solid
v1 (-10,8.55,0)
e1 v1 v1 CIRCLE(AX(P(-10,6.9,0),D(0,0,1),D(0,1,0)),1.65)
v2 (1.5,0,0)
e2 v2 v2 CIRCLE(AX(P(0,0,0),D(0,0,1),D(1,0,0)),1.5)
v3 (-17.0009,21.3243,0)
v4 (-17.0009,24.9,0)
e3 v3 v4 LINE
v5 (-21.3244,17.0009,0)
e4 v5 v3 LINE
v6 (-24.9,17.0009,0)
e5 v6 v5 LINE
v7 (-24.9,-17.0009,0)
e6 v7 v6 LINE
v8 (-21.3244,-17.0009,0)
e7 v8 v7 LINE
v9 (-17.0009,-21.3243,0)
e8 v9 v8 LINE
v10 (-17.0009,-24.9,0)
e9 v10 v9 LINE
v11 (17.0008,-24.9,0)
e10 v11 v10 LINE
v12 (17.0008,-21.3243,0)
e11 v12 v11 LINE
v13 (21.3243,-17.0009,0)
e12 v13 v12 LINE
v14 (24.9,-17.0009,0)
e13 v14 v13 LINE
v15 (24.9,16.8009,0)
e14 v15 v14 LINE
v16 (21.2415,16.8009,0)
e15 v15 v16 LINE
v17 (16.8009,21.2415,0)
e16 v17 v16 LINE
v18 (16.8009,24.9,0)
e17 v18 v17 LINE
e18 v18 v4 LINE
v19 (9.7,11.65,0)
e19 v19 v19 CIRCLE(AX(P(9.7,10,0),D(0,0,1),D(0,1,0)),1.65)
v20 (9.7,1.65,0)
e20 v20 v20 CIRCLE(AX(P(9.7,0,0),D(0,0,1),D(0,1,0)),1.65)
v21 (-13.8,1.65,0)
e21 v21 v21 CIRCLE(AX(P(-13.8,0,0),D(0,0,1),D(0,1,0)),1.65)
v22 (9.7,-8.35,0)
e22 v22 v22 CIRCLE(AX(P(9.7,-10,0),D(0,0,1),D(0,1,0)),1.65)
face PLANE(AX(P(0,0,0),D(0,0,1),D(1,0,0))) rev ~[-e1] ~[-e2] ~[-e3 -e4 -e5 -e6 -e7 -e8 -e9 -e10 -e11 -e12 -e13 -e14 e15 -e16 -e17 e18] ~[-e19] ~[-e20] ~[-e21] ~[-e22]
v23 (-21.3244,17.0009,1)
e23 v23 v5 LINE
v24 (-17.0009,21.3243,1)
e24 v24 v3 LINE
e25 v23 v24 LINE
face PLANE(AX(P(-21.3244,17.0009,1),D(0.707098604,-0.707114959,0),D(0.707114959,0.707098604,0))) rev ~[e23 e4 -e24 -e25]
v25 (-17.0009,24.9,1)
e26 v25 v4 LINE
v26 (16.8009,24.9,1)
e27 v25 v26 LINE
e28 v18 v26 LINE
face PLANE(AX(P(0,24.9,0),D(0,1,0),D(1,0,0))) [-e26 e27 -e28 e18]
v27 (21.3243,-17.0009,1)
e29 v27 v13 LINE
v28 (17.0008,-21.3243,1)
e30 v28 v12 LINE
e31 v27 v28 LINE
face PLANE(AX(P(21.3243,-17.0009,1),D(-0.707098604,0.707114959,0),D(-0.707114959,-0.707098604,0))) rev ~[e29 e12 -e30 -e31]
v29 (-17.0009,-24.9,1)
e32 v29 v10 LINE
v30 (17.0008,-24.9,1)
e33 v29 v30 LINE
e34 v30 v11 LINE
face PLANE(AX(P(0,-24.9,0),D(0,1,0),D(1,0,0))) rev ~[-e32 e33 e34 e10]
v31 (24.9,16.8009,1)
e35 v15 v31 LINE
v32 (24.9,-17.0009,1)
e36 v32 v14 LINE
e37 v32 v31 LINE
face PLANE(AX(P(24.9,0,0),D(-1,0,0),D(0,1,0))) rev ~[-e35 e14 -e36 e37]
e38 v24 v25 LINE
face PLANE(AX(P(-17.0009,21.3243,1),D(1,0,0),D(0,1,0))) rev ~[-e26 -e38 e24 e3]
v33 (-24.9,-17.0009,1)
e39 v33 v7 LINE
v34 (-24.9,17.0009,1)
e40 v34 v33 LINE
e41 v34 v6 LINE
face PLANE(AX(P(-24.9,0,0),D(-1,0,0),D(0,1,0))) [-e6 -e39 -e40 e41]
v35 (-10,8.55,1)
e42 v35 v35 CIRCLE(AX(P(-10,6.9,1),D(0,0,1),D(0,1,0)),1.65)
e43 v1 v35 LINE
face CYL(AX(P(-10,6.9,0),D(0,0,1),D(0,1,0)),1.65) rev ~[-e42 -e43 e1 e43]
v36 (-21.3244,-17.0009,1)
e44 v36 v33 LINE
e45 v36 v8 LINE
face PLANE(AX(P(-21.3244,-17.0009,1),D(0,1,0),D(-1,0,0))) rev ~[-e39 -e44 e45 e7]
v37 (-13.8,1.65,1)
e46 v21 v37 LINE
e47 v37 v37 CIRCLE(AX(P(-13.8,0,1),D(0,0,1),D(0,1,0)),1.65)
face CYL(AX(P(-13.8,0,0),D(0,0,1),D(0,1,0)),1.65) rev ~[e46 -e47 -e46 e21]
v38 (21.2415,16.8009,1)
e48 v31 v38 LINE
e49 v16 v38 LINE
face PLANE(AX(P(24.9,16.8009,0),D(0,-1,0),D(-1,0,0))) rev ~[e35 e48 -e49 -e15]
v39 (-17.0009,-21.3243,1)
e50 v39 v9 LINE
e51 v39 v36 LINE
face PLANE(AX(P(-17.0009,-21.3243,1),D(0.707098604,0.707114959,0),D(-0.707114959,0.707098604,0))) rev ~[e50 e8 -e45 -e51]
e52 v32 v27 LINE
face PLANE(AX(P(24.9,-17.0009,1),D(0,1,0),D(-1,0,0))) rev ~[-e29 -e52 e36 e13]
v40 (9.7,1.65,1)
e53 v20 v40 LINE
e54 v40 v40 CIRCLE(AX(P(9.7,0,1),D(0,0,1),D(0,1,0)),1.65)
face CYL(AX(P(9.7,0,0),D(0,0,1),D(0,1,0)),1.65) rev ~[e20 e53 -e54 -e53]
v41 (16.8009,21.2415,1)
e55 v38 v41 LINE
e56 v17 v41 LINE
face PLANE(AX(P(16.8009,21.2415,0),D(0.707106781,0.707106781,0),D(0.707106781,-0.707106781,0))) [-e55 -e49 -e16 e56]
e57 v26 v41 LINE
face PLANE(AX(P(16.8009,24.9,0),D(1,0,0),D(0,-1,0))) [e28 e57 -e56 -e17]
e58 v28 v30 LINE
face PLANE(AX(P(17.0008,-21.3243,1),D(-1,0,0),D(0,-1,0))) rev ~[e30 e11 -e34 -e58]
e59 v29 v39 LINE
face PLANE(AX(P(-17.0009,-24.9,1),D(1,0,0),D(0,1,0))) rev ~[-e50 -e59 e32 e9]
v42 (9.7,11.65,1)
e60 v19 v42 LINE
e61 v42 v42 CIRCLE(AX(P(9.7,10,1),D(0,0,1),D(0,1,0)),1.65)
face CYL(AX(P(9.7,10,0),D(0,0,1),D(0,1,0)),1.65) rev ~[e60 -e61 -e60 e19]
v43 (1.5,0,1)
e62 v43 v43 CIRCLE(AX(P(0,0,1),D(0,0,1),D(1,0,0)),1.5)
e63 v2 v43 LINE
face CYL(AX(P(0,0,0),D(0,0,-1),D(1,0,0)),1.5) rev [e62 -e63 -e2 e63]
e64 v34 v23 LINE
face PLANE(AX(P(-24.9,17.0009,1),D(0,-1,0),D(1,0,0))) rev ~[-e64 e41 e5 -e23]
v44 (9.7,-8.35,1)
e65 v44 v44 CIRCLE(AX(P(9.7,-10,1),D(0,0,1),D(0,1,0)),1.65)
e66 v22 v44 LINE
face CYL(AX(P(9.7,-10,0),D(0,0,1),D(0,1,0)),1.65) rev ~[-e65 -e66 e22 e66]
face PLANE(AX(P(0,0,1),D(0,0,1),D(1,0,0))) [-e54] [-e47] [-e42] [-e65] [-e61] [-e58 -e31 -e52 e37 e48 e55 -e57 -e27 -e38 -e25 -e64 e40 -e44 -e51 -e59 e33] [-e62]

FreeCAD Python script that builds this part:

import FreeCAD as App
import Part
import Sketcher
from FreeCAD import Vector
Q = App.Units.Quantity


def add_polygon(sketch, points):
    """Adds a closed chain of lines whose ends are joined by coincident constraints."""
    first, n = sketch.GeometryCount, len(points)
    for a, b in zip(points, points[1:] + points[:1]):
        sketch.addGeometry(Part.LineSegment(App.Vector(*a, 0), App.Vector(*b, 0)), False)
    for i in range(n):
        sketch.addConstraint(Sketcher.Constraint("Coincident", first + i, 2, first + (i + 1) % n, 1))

doc = App.newDocument("Part")
body = doc.addObject("PartDesign::Body", "Body")

sketch1 = body.newObject("Sketcher::SketchObject", "Sketch")
sketch1.AttachmentSupport = (doc.getObject("XY_Plane"), [""])
sketch1.MapMode = "FlatFace"
add_polygon(sketch1, [(16.8, 24.9), (-16.8, 24.9), (-16.8, 21.2), (-21.2, 16.8), (-24.9, 16.8), (-24.9, -16.8), (-21.2, -16.8), (-16.8, -21.2), (-16.8, -24.9), (16.8, -24.9), (16.8, -21.2), (21.2, -16.8), (24.9, -16.8), (24.9, 16.8), (21.2, 16.8), (16.8, 21.2)])
sketch1.addGeometry(Part.Circle(Vector(0, 0, 0), Vector(0, 0, 1), 1.5), False)
sketch1.addConstraint(Sketcher.Constraint("Horizontal", 0))
sketch1.addConstraint(Sketcher.Constraint("Vertical", 1))
sketch1.addConstraint(Sketcher.Constraint("Horizontal", 3))
sketch1.addConstraint(Sketcher.Constraint("Vertical", 4))
sketch1.addConstraint(Sketcher.Constraint("Horizontal", 5))
sketch1.addConstraint(Sketcher.Constraint("Vertical", 7))
sketch1.addConstraint(Sketcher.Constraint("Horizontal", 8))
sketch1.addConstraint(Sketcher.Constraint("Vertical", 9))
sketch1.addConstraint(Sketcher.Constraint("Horizontal", 11))
sketch1.addConstraint(Sketcher.Constraint("Vertical", 12))
sketch1.addConstraint(Sketcher.Constraint("Horizontal", 13))
sketch1.addConstraint(Sketcher.Constraint("Vertical", 15))
sketch1.addConstraint(Sketcher.Constraint("Coincident", 16, 3, -1, 1))
sketch1.addConstraint(Sketcher.Constraint("Symmetric", 0, 2, 8, 2, -1, 1))
sketch1.addConstraint(Sketcher.Constraint("Symmetric", 2, 2, 10, 2, -1, 1))
sketch1.addConstraint(Sketcher.Constraint("Symmetric", 4, 2, 12, 2, -1, 1))
sketch1.addConstraint(Sketcher.Constraint("Symmetric", 6, 2, 14, 2, -1, 1))
sketch1.addConstraint(Sketcher.Constraint("Symmetric", 6, 2, 9, 2, -2))
sketch1.addConstraint(Sketcher.Constraint("Symmetric", 5, 2, 10, 2, -2))
sketch1.addConstraint(Sketcher.Constraint("Perpendicular", 2, 6))
sketch1.addConstraint(Sketcher.Constraint("Perpendicular", 6, 10))
sketch1.addConstraint(Sketcher.Constraint("Perpendicular", 10, 14))
sketch1.addConstraint(Sketcher.Constraint("Equal", 13, 1))
sketch1.addConstraint(Sketcher.Constraint("Equal", 8, 4))
sketch1.addConstraint(Sketcher.Constraint("Diameter", 16, Q("3 mm")))
sketch1.addConstraint(Sketcher.Constraint("DistanceY", -1, 1, 0, 2, Q("24.9 mm")))
sketch1.addConstraint(Sketcher.Constraint("Distance", 2, Q("6.28 mm")))
sketch1.addConstraint(Sketcher.Constraint("DistanceX", 0, 2, 0, 1, Q("33.6018 mm")))
pad1 = body.newObject("PartDesign::Pad", "Pad")
pad1.Profile = sketch1
pad1.Length = 1

sketch2 = body.newObject("Sketcher::SketchObject", "Sketch001")
sketch2.AttachmentSupport = (doc.getObject("XY_Plane"), [""])
sketch2.MapMode = "FlatFace"
sketch2.addGeometry(Part.Circle(Vector(-13.8, 0, 0), Vector(0, 0, 1), 1.6), False)
sketch2.addGeometry(Part.Circle(Vector(9.7, -10, 0), Vector(0, 0, 1), 1.6), False)
sketch2.addGeometry(Part.Circle(Vector(-10, 6.9, 0), Vector(0, 0, 1), 1.6), False)
sketch2.addGeometry(Part.Circle(Vector(9.7, 10, 0), Vector(0, 0, 1), 1.6), False)
sketch2.addGeometry(Part.Circle(Vector(9.7, 0, 0), Vector(0, 0, 1), 1.6), False)
sketch2.addConstraint(Sketcher.Constraint("Equal", 0, 1))
sketch2.addConstraint(Sketcher.Constraint("Equal", 1, 2))
sketch2.addConstraint(Sketcher.Constraint("Equal", 2, 3))
sketch2.addConstraint(Sketcher.Constraint("Equal", 3, 4))
sketch2.addConstraint(Sketcher.Constraint("Symmetric", 1, 3, 3, 3, -1))
sketch2.addConstraint(Sketcher.Constraint("PointOnObject", 0, 3, -1))
sketch2.addConstraint(Sketcher.Constraint("PointOnObject", 4, 3, -1))
sketch2.addConstraint(Sketcher.Constraint("Vertical", 3, 3, 4, 3))
sketch2.addConstraint(Sketcher.Constraint("Diameter", 0, Q("3.3 mm")))
sketch2.addConstraint(Sketcher.Constraint("DistanceY", 1, 3, -1, 1, Q("10 mm")))
sketch2.addConstraint(Sketcher.Constraint("DistanceX", 2, 3, -1, 1, Q("10 mm")))
sketch2.addConstraint(Sketcher.Constraint("DistanceX", 0, 3, -1, 1, Q("13.8 mm")))
sketch2.addConstraint(Sketcher.Constraint("DistanceX", -1, 1, 1, 3, Q("9.7 mm")))
sketch2.addConstraint(Sketcher.Constraint("DistanceY", -1, 1, 2, 3, Q("6.9 mm")))
doc.recompute()
hole = body.newObject("PartDesign::Hole", "Hole")
hole.Profile = sketch2
hole.ThreadType = "None"
hole.Diameter = 3.3
hole.DepthType = "Dimension"
hole.Depth = 12
hole.DrillPoint = "Angled"
hole.DrillPointAngle = 118
hole.Reversed = True

sketch3 = body.newObject("Sketcher::SketchObject", "Sketch002")
sketch3.AttachmentSupport = (doc.getObject("XY_Plane"), [""])
sketch3.MapMode = "FlatFace"
sketch3.AttachmentOffset = App.Placement(Vector(0, 0, 1), App.Rotation())
add_polygon(sketch3, [(-16.8, 21.24), (-16.8, 24.9), (-17, 24.9), (-17, 21.32), (-21.32, 17), (-24.9, 17), (-24.9, 16.8), (-21.24, 16.8)])
add_polygon(sketch3, [(-21.24, -16.8), (-24.9, -16.8), (-24.9, -17), (-21.32, -17), (-17, -21.32), (-17, -24.9), (-16.8, -24.9), (-16.8, -21.24)])
add_polygon(sketch3, [(16.8, -21.24), (16.8, -24.9), (17, -24.9), (17, -21.32), (21.32, -17), (24.9, -17), (24.9, -16.8), (21.24, -16.8)])
sketch3.addConstraint(Sketcher.Constraint("Vertical", 0))
sketch3.addConstraint(Sketcher.Constraint("Horizontal", 1))
sketch3.addConstraint(Sketcher.Constraint("Vertical", 2))
sketch3.addConstraint(Sketcher.Constraint("Horizontal", 4))
sketch3.addConstraint(Sketcher.Constraint("Vertical", 5))
sketch3.addConstraint(Sketcher.Constraint("Horizontal", 6))
sketch3.addConstraint(Sketcher.Constraint("Horizontal", 8))
sketch3.addConstraint(Sketcher.Constraint("Vertical", 9))
sketch3.addConstraint(Sketcher.Constraint("Horizontal", 10))
sketch3.addConstraint(Sketcher.Constraint("Vertical", 12))
sketch3.addConstraint(Sketcher.Constraint("Horizontal", 13))
sketch3.addConstraint(Sketcher.Constraint("Vertical", 14))
sketch3.addConstraint(Sketcher.Constraint("Vertical", 16))
sketch3.addConstraint(Sketcher.Constraint("Horizontal", 17))
sketch3.addConstraint(Sketcher.Constraint("Vertical", 18))
sketch3.addConstraint(Sketcher.Constraint("Horizontal", 20))
sketch3.addConstraint(Sketcher.Constraint("Vertical", 21))
sketch3.addConstraint(Sketcher.Constraint("Horizontal", 22))
sketch3.addConstraint(Sketcher.Constraint("Symmetric", 0, 2, 16, 2, -1, 1))
sketch3.addConstraint(Sketcher.Constraint("Symmetric", 2, 2, 18, 2, -1, 1))
sketch3.addConstraint(Sketcher.Constraint("Symmetric", 3, 2, 19, 2, -1, 1))
sketch3.addConstraint(Sketcher.Constraint("Symmetric", 5, 2, 21, 2, -1, 1))
sketch3.addConstraint(Sketcher.Constraint("Symmetric", 13, 2, 16, 2, -2))
sketch3.addConstraint(Sketcher.Constraint("Symmetric", 11, 2, 18, 2, -2))
sketch3.addConstraint(Sketcher.Constraint("Symmetric", 10, 2, 19, 2, -2))
sketch3.addConstraint(Sketcher.Constraint("Symmetric", 8, 2, 21, 2, -2))
sketch3.addConstraint(Sketcher.Constraint("Parallel", 3, 7))
sketch3.addConstraint(Sketcher.Constraint("Perpendicular", 7, 11))
sketch3.addConstraint(Sketcher.Constraint("Parallel", 11, 15))
sketch3.addConstraint(Sketcher.Constraint("Parallel", 19, 23))
sketch3.addConstraint(Sketcher.Constraint("Horizontal", 14, 2, 23, 2))
sketch3.addConstraint(Sketcher.Constraint("Vertical", 6, 2, 15, 2))
sketch3.addConstraint(Sketcher.Constraint("Equal", 22, 0))
sketch3.addConstraint(Sketcher.Constraint("Equal", 20, 2))
sketch3.addConstraint(Sketcher.Constraint("DistanceX", 1, 2, 1, 1, Q("0.2 mm")))
sketch3.addConstraint(Sketcher.Constraint("DistanceY", -1, 1, 0, 2, Q("24.9 mm")))
sketch3.addConstraint(Sketcher.Constraint("DistanceX", 4, 2, -1, 1, Q("24.9 mm")))
sketch3.addConstraint(Sketcher.Constraint("Distance", 7, Q("6.28 mm")))
sketch3.addConstraint(Sketcher.Constraint("DistanceX", 4, 2, 4, 1, Q("3.5756 mm")))
sketch3.addConstraint(Sketcher.Constraint("DistanceX", 6, 1, 6, 2, Q("3.6585 mm")))
pad2 = body.newObject("PartDesign::Pad", "Pad001")
pad2.Profile = sketch3
pad2.Length = 1
pad2.Reversed = True

doc.recompute()
